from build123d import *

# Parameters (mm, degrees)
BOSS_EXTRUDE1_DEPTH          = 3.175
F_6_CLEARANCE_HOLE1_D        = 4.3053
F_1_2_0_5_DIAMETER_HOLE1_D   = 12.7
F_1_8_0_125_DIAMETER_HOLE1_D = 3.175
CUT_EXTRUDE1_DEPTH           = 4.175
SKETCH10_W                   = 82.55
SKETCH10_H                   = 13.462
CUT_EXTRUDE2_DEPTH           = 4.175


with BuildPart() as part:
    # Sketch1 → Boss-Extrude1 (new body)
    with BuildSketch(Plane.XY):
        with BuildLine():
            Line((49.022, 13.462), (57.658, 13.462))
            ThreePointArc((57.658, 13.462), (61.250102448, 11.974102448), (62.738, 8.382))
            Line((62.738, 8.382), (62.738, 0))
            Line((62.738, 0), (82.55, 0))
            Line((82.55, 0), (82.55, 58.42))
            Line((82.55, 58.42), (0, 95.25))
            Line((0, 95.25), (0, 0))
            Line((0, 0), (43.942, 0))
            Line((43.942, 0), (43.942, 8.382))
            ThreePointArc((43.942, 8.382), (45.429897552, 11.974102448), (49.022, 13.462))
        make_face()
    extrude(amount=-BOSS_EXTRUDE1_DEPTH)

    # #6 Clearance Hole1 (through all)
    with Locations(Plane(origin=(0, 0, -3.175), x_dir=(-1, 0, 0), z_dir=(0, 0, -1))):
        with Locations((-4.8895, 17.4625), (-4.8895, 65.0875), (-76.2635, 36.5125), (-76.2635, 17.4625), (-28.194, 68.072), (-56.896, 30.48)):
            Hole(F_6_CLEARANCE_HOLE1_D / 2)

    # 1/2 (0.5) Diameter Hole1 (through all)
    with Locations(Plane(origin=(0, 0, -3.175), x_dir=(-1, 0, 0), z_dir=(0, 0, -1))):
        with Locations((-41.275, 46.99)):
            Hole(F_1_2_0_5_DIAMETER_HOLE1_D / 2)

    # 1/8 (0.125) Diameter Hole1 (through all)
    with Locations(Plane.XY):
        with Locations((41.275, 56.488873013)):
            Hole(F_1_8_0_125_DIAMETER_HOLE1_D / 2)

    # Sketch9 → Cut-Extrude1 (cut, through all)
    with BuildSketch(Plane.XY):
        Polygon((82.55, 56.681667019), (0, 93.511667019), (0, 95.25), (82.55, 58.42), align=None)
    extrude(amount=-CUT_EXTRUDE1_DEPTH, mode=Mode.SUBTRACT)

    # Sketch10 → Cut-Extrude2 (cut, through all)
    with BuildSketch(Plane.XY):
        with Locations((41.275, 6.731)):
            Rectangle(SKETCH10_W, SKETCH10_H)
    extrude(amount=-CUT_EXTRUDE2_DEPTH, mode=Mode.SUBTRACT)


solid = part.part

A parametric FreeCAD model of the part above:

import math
import FreeCAD as App
import Part
import Sketcher
Q = App.Units.Quantity


def add_polygon(sketch, points):
    """Adds a closed chain of lines whose ends are joined by coincident constraints."""
    first, n = sketch.GeometryCount, len(points)
    for a, b in zip(points, points[1:] + points[:1]):
        sketch.addGeometry(Part.LineSegment(App.Vector(*a, 0), App.Vector(*b, 0)), False)
    for i in range(n):
        sketch.addConstraint(Sketcher.Constraint("Coincident", first + i, 2, first + (i + 1) % n, 1))

doc = App.newDocument("Part")
body = doc.addObject("PartDesign::Body", "Body")

# Sketch on XY plane
sketch1 = body.newObject("Sketcher::SketchObject", "Sketch")
sketch1.AttachmentSupport = (doc.getObject("XY_Plane"), [""])
sketch1.MapMode = "FlatFace"
sketch1.addGeometry([
    Part.LineSegment(App.Vector(49.022, 13.462, 0), App.Vector(57.658, 13.462, 0)),  # 0
    Part.ArcOfCircle(Part.Circle(App.Vector(57.658, 8.382, 0), App.Vector(0, 0, 1), 5.08), math.radians(0), math.radians(90)),  # 1
    Part.LineSegment(App.Vector(62.738, 8.382, 0), App.Vector(62.738, 0, 0)),  # 2
    Part.LineSegment(App.Vector(62.738, 0, 0), App.Vector(82.55, 0, 0)),  # 3
    Part.LineSegment(App.Vector(82.55, 0, 0), App.Vector(82.55, 58.42, 0)),  # 4
    Part.LineSegment(App.Vector(82.55, 58.42, 0), App.Vector(0, 95.25, 0)),  # 5
    Part.LineSegment(App.Vector(0, 95.25, 0), App.Vector(0, 0, 0)),  # 6
    Part.LineSegment(App.Vector(0, 0, 0), App.Vector(43.942, 0, 0)),  # 7
    Part.LineSegment(App.Vector(43.942, 0, 0), App.Vector(43.942, 8.382, 0)),  # 8
    Part.ArcOfCircle(Part.Circle(App.Vector(49.022, 8.382, 0), App.Vector(0, 0, 1), 5.08), math.radians(90), math.radians(180)),  # 9
], False)
sketch1.addConstraint([
    Sketcher.Constraint("Tangent", 0, 2, 1, 2),
    Sketcher.Constraint("Tangent", 1, 1, 2, 1),
    Sketcher.Constraint("Coincident", 2, 2, 3, 1),
    Sketcher.Constraint("Coincident", 3, 2, 4, 1),
    Sketcher.Constraint("Coincident", 4, 2, 5, 1),
    Sketcher.Constraint("Coincident", 5, 2, 6, 1),
    Sketcher.Constraint("Coincident", 6, 2, 7, 1),
    Sketcher.Constraint("Coincident", 7, 2, 8, 1),
    Sketcher.Constraint("Tangent", 8, 2, 9, 2),
    Sketcher.Constraint("Tangent", 9, 1, 0, 1),
    Sketcher.Constraint("Horizontal", 0),
    Sketcher.Constraint("Vertical", 2),
    Sketcher.Constraint("Horizontal", 3),
    Sketcher.Constraint("Vertical", 4),
    Sketcher.Constraint("Vertical", 6),
    Sketcher.Constraint("Horizontal", 7),
    Sketcher.Constraint("Vertical", 8),
    Sketcher.Constraint("Coincident", 6, 2, -1, 1),
    Sketcher.Constraint("Equal", 1, 9),
    Sketcher.Constraint("PointOnObject", 2, 2, -1),
    Sketcher.Constraint("Radius", 1, Q("0.2 in")),
    Sketcher.Constraint("DistanceY", 4, 1, 4, 2, Q("2.3 in")),
    Sketcher.Constraint("DistanceX", 0, 1, 0, 2, Q("0.34 in")),
    Sketcher.Constraint("DistanceX", 3, 1, 3, 2, Q("0.78 in")),
    Sketcher.Constraint("DistanceX", 7, 1, 7, 2, Q("1.73 in")),
    Sketcher.Constraint("DistanceY", 2, 2, 2, 1, Q("0.33 in")),
    Sketcher.Constraint("DistanceY", 6, 2, 6, 1, Q("3.75 in")),
])
pad1 = body.newObject("PartDesign::Pad", "Pad")
pad1.Profile = sketch1
pad1.Length = Q("0.125 in")
pad1.Reversed = True

# Sketch on XY plane
sketch2 = body.newObject("Sketcher::SketchObject", "Sketch001")
sketch2.AttachmentSupport = (doc.getObject("XY_Plane"), [""])
sketch2.MapMode = "FlatFace"
sketch2.AttachmentOffset = App.Placement(App.Vector(0, 0, -0.125 * 25.4), App.Rotation())
sketch2.addGeometry([
    Part.Circle(App.Vector(4.8895, 17.4625, 0), App.Vector(0, 0, 1), 2.15265),  # 0
    Part.Circle(App.Vector(4.8895, 65.0875, 0), App.Vector(0, 0, 1), 2.15265),  # 1
    Part.Circle(App.Vector(76.2635, 36.5125, 0), App.Vector(0, 0, 1), 2.15265),  # 2
    Part.Circle(App.Vector(76.2635, 17.4625, 0), App.Vector(0, 0, 1), 2.15265),  # 3
    Part.Circle(App.Vector(28.194, 68.072, 0), App.Vector(0, 0, 1), 2.15265),  # 4
    Part.Circle(App.Vector(56.896, 30.48, 0), App.Vector(0, 0, 1), 2.15265),  # 5
], False)
sketch2.addConstraint([
    Sketcher.Constraint("Equal", 0, 1),
    Sketcher.Constraint("Equal", 1, 2),
    Sketcher.Constraint("Equal", 2, 3),
    Sketcher.Constraint("Equal", 3, 4),
    Sketcher.Constraint("Equal", 4, 5),
    Sketcher.Constraint("Horizontal", 0, 3, 3, 3),
    Sketcher.Constraint("Vertical", 0, 3, 1, 3),
    Sketcher.Constraint("Vertical", 2, 3, 3, 3),
    Sketcher.Constraint("Diameter", 0, Q("0.1695 in")),
    Sketcher.Constraint("DistanceY", -1, 1, 5, 3, Q("1.2 in")),
    Sketcher.Constraint("DistanceX", -1, 1, 4, 3, Q("1.11 in")),
    Sketcher.Constraint("DistanceY", -1, 1, 4, 3, Q("2.68 in")),
    Sketcher.Constraint("DistanceX", -1, 1, 5, 3, Q("2.24 in")),
    Sketcher.Constraint("DistanceX", 0, 3, 2, 3, Q("2.81 in")),
    Sketcher.Constraint("DistanceY", 0, 3, 2, 3, Q("0.75 in")),
    Sketcher.Constraint("DistanceY", -1, 1, 0, 3, Q("0.6875 in")),
    Sketcher.Constraint("DistanceY", -1, 1, 1, 3, Q("2.5625 in")),
    Sketcher.Constraint("DistanceX", -1, 1, 0, 3, Q("0.1925 in")),
])
doc.recompute()
hole = body.newObject("PartDesign::Hole", "Hole")
hole.Profile = sketch2
hole.ThreadType = "None"
hole.Diameter = Q("0.1695 in")
hole.DepthType = "ThroughAll"
hole.Reversed = True

# Sketch on XY plane
sketch3 = body.newObject("Sketcher::SketchObject", "Sketch002")
sketch3.AttachmentSupport = (doc.getObject("XY_Plane"), [""])
sketch3.MapMode = "FlatFace"
sketch3.AttachmentOffset = App.Placement(App.Vector(0, 0, -0.125 * 25.4), App.Rotation())
sketch3.addGeometry(Part.Circle(App.Vector(41.275, 46.99, 0), App.Vector(0, 0, 1), 6.35), False)
sketch3.addConstraint([
    Sketcher.Constraint("Diameter", 0, Q("0.5 in")),
    Sketcher.Constraint("DistanceY", -1, 1, 0, 3, Q("1.85 in")),
    Sketcher.Constraint("DistanceX", -1, 1, 0, 3, Q("1.625 in")),
])
doc.recompute()
hole2 = body.newObject("PartDesign::Hole", "Hole001")
hole2.Profile = sketch3
hole2.ThreadType = "None"
hole2.Diameter = Q("0.5 in")
hole2.DepthType = "ThroughAll"
hole2.Reversed = True

# Sketch on XY plane
sketch4 = body.newObject("Sketcher::SketchObject", "Sketch003")
sketch4.AttachmentSupport = (doc.getObject("XY_Plane"), [""])
sketch4.MapMode = "FlatFace"
sketch4.addGeometry(Part.Circle(App.Vector(41.275, 56.488873, 0), App.Vector(0, 0, 1), 1.5875), False)
sketch4.addConstraint([
    Sketcher.Constraint("Diameter", 0, Q("0.125 in")),
    Sketcher.Constraint("DistanceX", -1, 1, 0, 3, Q("1.625 in")),
    Sketcher.Constraint("DistanceY", -1, 1, 0, 3, Q("56.488873 mm")),
])
doc.recompute()
hole3 = body.newObject("PartDesign::Hole", "Hole002")
hole3.Profile = sketch4
hole3.ThreadType = "None"
hole3.Diameter = Q("0.125 in")
hole3.DepthType = "ThroughAll"

# Sketch on XY plane
sketch5 = body.newObject("Sketcher::SketchObject", "Sketch004")
sketch5.AttachmentSupport = (doc.getObject("XY_Plane"), [""])
sketch5.MapMode = "FlatFace"
add_polygon(sketch5, [(0, 93.511667), (82.55, 56.681667), (82.55, 58.42), (0, 95.25)])  # lines 0-3
sketch5.addConstraint([
    Sketcher.Constraint("Vertical", 1),
    Sketcher.Constraint("Vertical", 3),
    Sketcher.Constraint("PointOnObject", 2, 2, -2),
    Sketcher.Constraint("Parallel", 0, 2),
    Sketcher.Constraint("DistanceY", -1, 1, 1, 2, Q("2.3 in")),
    Sketcher.Constraint("DistanceX", -1, 1, 0, 2, Q("3.25 in")),
    Sketcher.Constraint("DistanceY", -1, 1, 2, 2, Q("3.75 in")),
    Sketcher.Constraint("DistanceY", 1, 1, 1, 2, Q("1.738333 mm")),
])
pocket1 = body.newObject("PartDesign::Pocket", "Pocket")
pocket1.Profile = sketch5
pocket1.Type = "ThroughAll"

# Sketch on XY plane
sketch6 = body.newObject("Sketcher::SketchObject", "Sketch005")
sketch6.AttachmentSupport = (doc.getObject("XY_Plane"), [""])
sketch6.MapMode = "FlatFace"
add_polygon(sketch6, [(0, 13.462), (0, 0), (82.55, 0), (82.55, 13.462)])  # lines 0-3
sketch6.addConstraint([
    Sketcher.Constraint("Vertical", 0),
    Sketcher.Constraint("Horizontal", 1),
    Sketcher.Constraint("Vertical", 2),
    Sketcher.Constraint("Horizontal", 3),
    Sketcher.Constraint("Coincident", 0, 2, -1, 1),
    Sketcher.Constraint("DistanceX", 1, 1, 1, 2, Q("3.25 in")),
    Sketcher.Constraint("DistanceY", 0, 2, 0, 1, Q("0.53 in")),
])
pocket2 = body.newObject("PartDesign::Pocket", "Pocket001")
pocket2.Profile = sketch6
pocket2.Type = "ThroughAll"

doc.recompute()
